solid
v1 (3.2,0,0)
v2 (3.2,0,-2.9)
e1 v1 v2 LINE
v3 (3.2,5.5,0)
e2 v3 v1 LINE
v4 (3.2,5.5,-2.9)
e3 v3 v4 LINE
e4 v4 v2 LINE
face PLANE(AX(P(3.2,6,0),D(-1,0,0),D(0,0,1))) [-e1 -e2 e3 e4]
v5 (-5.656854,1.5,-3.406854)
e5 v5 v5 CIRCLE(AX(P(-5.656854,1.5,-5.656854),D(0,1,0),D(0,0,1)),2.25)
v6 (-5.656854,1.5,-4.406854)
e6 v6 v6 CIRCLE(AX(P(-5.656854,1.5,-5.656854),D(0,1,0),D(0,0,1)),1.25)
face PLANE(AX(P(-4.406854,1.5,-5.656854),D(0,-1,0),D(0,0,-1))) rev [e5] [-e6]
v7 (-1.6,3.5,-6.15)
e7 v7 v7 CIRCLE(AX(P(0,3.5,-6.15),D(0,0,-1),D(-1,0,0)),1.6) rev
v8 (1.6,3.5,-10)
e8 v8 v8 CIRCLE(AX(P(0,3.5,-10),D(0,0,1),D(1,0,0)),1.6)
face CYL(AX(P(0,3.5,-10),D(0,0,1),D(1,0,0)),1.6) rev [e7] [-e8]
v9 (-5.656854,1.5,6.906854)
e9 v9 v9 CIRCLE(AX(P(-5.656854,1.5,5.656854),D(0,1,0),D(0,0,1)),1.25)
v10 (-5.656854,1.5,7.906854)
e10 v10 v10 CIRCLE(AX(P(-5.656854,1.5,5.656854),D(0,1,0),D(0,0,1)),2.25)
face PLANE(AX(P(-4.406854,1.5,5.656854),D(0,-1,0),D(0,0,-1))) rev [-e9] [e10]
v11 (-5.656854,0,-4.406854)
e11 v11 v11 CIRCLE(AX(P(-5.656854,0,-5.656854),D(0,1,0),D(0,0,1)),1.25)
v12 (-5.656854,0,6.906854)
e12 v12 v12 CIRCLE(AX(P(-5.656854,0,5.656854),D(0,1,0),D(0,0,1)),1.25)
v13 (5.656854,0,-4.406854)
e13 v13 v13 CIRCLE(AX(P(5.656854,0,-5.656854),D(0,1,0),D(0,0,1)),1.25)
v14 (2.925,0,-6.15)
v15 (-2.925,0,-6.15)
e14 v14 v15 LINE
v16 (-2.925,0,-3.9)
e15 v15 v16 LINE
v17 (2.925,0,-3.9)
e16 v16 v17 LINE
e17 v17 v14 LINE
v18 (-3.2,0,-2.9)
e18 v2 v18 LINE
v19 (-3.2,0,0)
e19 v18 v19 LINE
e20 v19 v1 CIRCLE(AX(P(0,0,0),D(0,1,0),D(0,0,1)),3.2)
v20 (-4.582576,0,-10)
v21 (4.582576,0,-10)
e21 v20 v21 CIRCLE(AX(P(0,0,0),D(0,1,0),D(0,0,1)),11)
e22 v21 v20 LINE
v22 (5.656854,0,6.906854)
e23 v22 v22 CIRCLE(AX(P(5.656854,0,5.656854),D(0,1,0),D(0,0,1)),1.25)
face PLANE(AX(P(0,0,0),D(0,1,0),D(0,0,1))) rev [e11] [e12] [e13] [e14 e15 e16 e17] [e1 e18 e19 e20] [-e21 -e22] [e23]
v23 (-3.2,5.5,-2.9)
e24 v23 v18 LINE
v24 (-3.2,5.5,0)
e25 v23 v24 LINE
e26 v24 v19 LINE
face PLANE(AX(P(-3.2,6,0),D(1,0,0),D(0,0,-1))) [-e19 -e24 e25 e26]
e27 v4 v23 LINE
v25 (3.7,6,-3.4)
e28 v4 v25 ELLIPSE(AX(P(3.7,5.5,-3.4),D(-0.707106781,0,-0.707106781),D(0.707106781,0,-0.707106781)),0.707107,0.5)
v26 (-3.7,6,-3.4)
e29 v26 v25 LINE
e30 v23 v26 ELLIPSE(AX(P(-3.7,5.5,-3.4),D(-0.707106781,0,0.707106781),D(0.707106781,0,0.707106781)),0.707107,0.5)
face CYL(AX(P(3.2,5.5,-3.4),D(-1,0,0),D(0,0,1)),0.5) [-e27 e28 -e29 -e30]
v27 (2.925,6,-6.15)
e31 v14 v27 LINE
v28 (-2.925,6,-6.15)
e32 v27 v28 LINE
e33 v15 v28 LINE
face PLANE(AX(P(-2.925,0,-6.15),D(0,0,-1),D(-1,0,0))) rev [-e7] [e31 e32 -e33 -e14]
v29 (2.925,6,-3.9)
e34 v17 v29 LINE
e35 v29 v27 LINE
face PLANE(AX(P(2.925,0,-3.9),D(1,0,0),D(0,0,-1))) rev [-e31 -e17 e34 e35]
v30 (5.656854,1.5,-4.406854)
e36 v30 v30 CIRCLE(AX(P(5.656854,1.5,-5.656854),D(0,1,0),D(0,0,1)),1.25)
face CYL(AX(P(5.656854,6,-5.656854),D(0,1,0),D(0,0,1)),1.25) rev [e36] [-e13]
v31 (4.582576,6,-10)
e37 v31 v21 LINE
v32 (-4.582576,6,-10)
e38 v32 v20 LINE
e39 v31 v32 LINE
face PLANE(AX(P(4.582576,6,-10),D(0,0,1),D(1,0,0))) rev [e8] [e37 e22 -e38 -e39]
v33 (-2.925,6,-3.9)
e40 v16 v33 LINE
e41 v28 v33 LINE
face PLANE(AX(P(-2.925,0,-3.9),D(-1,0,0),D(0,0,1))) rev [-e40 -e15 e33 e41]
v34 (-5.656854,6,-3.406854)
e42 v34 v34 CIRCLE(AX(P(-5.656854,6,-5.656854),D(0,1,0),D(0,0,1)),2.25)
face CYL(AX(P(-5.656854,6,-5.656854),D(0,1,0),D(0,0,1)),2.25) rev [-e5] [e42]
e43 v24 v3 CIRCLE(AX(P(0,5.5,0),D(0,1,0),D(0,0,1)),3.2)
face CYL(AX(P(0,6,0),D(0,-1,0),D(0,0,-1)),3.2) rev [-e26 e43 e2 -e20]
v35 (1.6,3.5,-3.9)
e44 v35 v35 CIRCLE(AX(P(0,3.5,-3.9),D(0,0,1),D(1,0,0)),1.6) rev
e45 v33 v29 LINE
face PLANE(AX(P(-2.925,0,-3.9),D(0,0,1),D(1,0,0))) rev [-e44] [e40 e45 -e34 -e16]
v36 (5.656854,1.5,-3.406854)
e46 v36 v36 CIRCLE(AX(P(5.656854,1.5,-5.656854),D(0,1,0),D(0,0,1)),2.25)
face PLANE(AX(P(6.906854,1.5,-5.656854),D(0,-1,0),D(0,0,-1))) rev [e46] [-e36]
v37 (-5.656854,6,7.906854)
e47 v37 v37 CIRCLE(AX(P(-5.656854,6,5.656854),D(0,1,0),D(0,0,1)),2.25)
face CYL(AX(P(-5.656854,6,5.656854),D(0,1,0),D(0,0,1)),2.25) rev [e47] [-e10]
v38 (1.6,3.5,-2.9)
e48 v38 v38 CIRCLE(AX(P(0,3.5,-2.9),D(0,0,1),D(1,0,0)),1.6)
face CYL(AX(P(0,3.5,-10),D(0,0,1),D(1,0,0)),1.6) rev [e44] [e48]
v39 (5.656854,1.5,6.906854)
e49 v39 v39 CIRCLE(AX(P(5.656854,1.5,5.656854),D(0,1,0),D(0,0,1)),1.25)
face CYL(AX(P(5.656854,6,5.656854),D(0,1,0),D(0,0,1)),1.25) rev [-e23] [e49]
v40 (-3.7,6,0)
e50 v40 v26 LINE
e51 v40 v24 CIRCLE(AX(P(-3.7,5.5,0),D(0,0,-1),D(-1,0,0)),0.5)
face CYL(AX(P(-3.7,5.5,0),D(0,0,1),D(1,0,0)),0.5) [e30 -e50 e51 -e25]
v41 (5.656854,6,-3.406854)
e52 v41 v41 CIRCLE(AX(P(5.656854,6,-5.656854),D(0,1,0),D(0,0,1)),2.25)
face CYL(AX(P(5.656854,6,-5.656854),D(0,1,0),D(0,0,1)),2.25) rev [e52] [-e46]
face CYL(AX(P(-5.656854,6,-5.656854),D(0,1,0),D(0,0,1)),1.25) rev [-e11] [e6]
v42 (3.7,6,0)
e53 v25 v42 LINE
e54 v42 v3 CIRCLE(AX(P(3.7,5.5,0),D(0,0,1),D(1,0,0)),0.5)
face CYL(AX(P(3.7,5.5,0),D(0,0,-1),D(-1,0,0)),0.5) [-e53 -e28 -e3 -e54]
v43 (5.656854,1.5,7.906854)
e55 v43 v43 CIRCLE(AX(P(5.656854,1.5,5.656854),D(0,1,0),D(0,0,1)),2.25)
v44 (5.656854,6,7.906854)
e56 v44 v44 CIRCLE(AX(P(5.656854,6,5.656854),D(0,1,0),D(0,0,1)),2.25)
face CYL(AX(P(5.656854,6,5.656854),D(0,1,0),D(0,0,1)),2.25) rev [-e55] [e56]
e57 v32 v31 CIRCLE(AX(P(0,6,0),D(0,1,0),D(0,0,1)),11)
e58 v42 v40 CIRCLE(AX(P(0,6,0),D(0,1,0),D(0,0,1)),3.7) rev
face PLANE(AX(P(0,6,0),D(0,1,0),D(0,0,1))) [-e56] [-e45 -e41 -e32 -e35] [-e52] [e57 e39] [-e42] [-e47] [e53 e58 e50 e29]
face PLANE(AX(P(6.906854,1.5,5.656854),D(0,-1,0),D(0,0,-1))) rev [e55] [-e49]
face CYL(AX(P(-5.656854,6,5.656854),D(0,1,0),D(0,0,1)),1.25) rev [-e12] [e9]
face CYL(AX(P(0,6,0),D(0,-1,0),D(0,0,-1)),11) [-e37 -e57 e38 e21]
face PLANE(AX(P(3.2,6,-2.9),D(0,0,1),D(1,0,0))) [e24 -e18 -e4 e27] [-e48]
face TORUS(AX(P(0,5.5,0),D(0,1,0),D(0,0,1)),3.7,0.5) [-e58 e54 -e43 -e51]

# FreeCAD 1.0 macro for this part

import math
import FreeCAD as App
import Part
import Sketcher
Q = App.Units.Quantity


def edges_at(feature, points):
    """Names of the edges that pass closest to the given points."""
    edges = feature.Shape.Edges
    near = lambda p: min(range(len(edges)), key=lambda i: edges[i].distToShape(Part.Vertex(*p))[0])
    return sorted({f"Edge{near(p) + 1}" for p in points})

doc = App.newDocument("Part")
body = doc.addObject("PartDesign::Body", "Body")

sketch1 = doc.addObject("Sketcher::SketchObject", "Sketch")
body.addObject(sketch1)
sketch1.AttachmentSupport = (doc.XZ_Plane, [""])
sketch1.MapMode = "FlatFace"
sketch1.addGeometry([
    Part.LineSegment(App.Vector(4.582576, -10, 0), App.Vector(-4.582576, -10, 0)),
    Part.ArcOfCircle(Part.Circle(App.Vector(0, 0, 0), App.Vector(0, 0, 1), 11), math.radians(-65.380023), math.radians(245.380023)),
    Part.ArcOfCircle(Part.Circle(App.Vector(0, 0, 0), App.Vector(0, 0, 1), 3.2), math.radians(0), math.radians(180)),
    Part.LineSegment(App.Vector(-3.2, 0, 0), App.Vector(-3.2, -2.9, 0)),
    Part.LineSegment(App.Vector(-3.2, -2.9, 0), App.Vector(3.2, -2.9, 0)),
    Part.LineSegment(App.Vector(3.2, -2.9, 0), App.Vector(3.2, 0, 0)),
], False)
sketch1.addConstraint([
    Sketcher.Constraint("Coincident", 0, 1, 1, 1),
    Sketcher.Constraint("Coincident", 1, 2, 0, 2),
    Sketcher.Constraint("Tangent", 2, 2, 3, 1),
    Sketcher.Constraint("Coincident", 3, 2, 4, 1),
    Sketcher.Constraint("Coincident", 4, 2, 5, 1),
    Sketcher.Constraint("Tangent", 5, 2, 2, 1),
    Sketcher.Constraint("Horizontal", 0),
    Sketcher.Constraint("Vertical", 3),
    Sketcher.Constraint("Horizontal", 4),
    Sketcher.Constraint("Vertical", 5),
    Sketcher.Constraint("Coincident", 1, 3, -1, 1),
    Sketcher.Constraint("Coincident", 2, 3, -1, 1),
    Sketcher.Constraint("Radius", 1, Q("11 mm")),
    Sketcher.Constraint("Radius", 2, Q("3.2 mm")),
    Sketcher.Constraint("DistanceY", 3, 2, 3, 1, Q("2.9 mm")),
    Sketcher.Constraint("DistanceY", 0, 1, -1, 1, Q("10 mm")),
])
pad1 = doc.addObject("PartDesign::Pad", "Pad")
body.addObject(pad1)
pad1.Profile = sketch1
pad1.Length = 6
pad1.Reversed = True

sketch2 = doc.addObject("Sketcher::SketchObject", "Sketch001")
body.addObject(sketch2)
sketch2.AttachmentSupport = (doc.XZ_Plane, [""])
sketch2.MapMode = "FlatFace"
sketch2.AttachmentOffset = App.Placement(App.Vector(0, 0, -6), App.Rotation())
sketch2.addGeometry([
    Part.Circle(App.Vector(5.656854, -5.656854, 0), App.Vector(0, 0, 1), 1.25),
    Part.Circle(App.Vector(5.656854, 5.656854, 0), App.Vector(0, 0, 1), 1.25),
    Part.Circle(App.Vector(-5.656854, 5.656854, 0), App.Vector(0, 0, 1), 1.25),
    Part.Circle(App.Vector(-5.656854, -5.656854, 0), App.Vector(0, 0, 1), 1.25),
    Part.Circle(App.Vector(0, 0, 0), App.Vector(0, 0, 1), 1.25),
], False)
sketch2.addConstraint([
    Sketcher.Constraint("Coincident", 4, 3, -1, 1),
    Sketcher.Constraint("Equal", 0, 1),
    Sketcher.Constraint("Equal", 1, 2),
    Sketcher.Constraint("Equal", 2, 3),
    Sketcher.Constraint("Equal", 3, 4),
    Sketcher.Constraint("Symmetric", 0, 3, 2, 3, -1, 1),
    Sketcher.Constraint("Symmetric", 1, 3, 3, 3, -1, 1),
    Sketcher.Constraint("Symmetric", 1, 3, 2, 3, -2),
    Sketcher.Constraint("Diameter", 0, Q("2.5 mm")),
    Sketcher.Constraint("DistanceY", 0, 3, 1, 3, Q("11.313708 mm")),
    Sketcher.Constraint("DistanceX", 2, 3, 1, 3, Q("11.313708 mm")),
])
doc.recompute()
hole = doc.addObject("PartDesign::Hole", "Hole")
body.addObject(hole)
hole.Profile = sketch2
hole.ThreadType = "None"
hole.Diameter = 2.5
hole.DepthType = "ThroughAll"
hole.HoleCutType = "Counterbore"
hole.HoleCutDiameter = 4.5
hole.HoleCutDepth = 4.5
hole.Reversed = True
doc.recompute()

fillet = doc.addObject("PartDesign::Fillet", "Fillet")
body.addObject(fillet)
fillet.Base = (hole, edges_at(hole, [
    (0, 6, 3.2),
    (3.2, 6, -1.45),
    (0, 6, -2.9),
    (-3.2, 6, -1.45),
]))
fillet.Radius = 0.5

sketch3 = doc.addObject("Sketcher::SketchObject", "Sketch002")
body.addObject(sketch3)
sketch3.AttachmentSupport = (doc.XY_Plane, [""])
sketch3.MapMode = "FlatFace"
sketch3.addGeometry(Part.Circle(App.Vector(0, 3.5, 0), App.Vector(0, 0, 1), 1.6), False)
sketch3.addConstraint([
    Sketcher.Constraint("PointOnObject", 0, 3, -2),
    Sketcher.Constraint("Diameter", 0, Q("3.2 mm")),
    Sketcher.Constraint("DistanceY", -1, 1, 0, 3, Q("3.5 mm")),
])
pocket1 = doc.addObject("PartDesign::Pocket", "Pocket")
body.addObject(pocket1)
pocket1.Profile = sketch3
pocket1.Type = "ThroughAll"

sketch4 = doc.addObject("Sketcher::SketchObject", "Sketch003")
body.addObject(sketch4)
sketch4.AttachmentSupport = (doc.XZ_Plane, [""])
sketch4.MapMode = "FlatFace"
sketch4.AttachmentOffset = App.Placement(App.Vector(0, 0, -6), App.Rotation())
sketch4.addGeometry([
    Part.LineSegment(App.Vector(-2.925, -6.15, 0), App.Vector(-2.925, -3.9, 0)),
    Part.LineSegment(App.Vector(-2.925, -3.9, 0), App.Vector(2.925, -3.9, 0)),
    Part.LineSegment(App.Vector(2.925, -3.9, 0), App.Vector(2.925, -6.15, 0)),
    Part.LineSegment(App.Vector(2.925, -6.15, 0), App.Vector(-2.925, -6.15, 0)),
], False)
sketch4.addConstraint([
    Sketcher.Constraint("Coincident", 0, 2, 1, 1),
    Sketcher.Constraint("Coincident", 1, 2, 2, 1),
    Sketcher.Constraint("Coincident", 2, 2, 3, 1),
    Sketcher.Constraint("Coincident", 3, 2, 0, 1),
    Sketcher.Constraint("Vertical", 0),
    Sketcher.Constraint("Horizontal", 1),
    Sketcher.Constraint("Vertical", 2),
    Sketcher.Constraint("Horizontal", 3),
    Sketcher.Constraint("DistanceX", 1, 1, 1, 2, Q("5.85 mm")),
    Sketcher.Constraint("DistanceY", 0, 1, 0, 2, Q("2.25 mm")),
    Sketcher.Constraint("DistanceY", 0, 2, -1, 1, Q("3.9 mm")),
    Sketcher.Constraint("DistanceX", 0, 2, -1, 1, Q("2.925 mm")),
])
pocket2 = doc.addObject("PartDesign::Pocket", "Pocket001")
body.addObject(pocket2)
pocket2.Profile = sketch4
pocket2.Type = "ThroughAll"
pocket2.Reversed = True

doc.recompute()
